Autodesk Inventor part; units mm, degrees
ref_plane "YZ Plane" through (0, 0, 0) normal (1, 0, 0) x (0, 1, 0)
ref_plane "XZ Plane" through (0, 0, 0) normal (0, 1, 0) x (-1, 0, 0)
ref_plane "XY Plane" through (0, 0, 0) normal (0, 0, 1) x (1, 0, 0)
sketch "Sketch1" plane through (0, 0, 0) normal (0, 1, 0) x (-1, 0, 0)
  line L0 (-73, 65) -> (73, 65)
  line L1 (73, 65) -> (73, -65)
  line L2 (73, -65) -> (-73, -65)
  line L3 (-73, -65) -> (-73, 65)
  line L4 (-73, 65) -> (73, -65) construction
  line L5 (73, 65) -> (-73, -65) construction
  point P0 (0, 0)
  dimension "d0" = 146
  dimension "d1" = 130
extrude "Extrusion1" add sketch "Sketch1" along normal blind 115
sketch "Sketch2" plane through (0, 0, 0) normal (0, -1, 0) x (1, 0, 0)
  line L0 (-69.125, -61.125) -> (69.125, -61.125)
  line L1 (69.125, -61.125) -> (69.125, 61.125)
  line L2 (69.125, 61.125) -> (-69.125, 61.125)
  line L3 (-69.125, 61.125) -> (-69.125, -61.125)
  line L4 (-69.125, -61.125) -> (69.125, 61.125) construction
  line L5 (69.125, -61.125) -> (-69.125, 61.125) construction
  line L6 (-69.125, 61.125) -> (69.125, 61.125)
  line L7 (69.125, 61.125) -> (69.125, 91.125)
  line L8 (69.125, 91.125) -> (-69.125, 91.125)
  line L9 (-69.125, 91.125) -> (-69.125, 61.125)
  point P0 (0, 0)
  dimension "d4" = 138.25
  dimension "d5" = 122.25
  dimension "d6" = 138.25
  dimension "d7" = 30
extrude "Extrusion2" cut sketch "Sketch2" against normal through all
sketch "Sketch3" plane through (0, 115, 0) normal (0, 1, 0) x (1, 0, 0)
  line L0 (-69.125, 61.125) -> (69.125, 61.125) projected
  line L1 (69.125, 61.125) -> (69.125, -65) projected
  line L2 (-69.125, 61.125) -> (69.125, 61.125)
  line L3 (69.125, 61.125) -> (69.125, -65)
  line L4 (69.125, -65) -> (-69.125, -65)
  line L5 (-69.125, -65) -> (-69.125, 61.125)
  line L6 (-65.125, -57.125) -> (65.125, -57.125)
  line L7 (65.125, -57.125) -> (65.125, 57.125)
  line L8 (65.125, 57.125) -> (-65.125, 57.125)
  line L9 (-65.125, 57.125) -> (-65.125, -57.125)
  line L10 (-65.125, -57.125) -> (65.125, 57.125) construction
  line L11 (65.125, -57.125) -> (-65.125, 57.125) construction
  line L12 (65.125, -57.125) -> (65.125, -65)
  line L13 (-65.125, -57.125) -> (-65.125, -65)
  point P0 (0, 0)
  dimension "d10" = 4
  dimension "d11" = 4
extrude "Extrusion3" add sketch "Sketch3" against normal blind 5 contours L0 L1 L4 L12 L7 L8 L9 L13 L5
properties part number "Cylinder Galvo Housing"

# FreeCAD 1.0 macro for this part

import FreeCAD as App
import Part
import Sketcher
from FreeCAD import Vector

doc = App.newDocument("Part")
params = doc.addObject("Spreadsheet::Sheet", "Params")
for row, (alias, value) in enumerate([
    ("sketch1_width", "146 mm"),
    ("sketch1_height", "130 mm"),
    ("pad1_length", "115 mm"),
    ("sketch2_width", "138.25 mm"),
    ("sketch2_height", "152.25 mm"),
    ("sketch3_width", "4 mm"),
    ("sketch3_width2", "138.25 mm"),
    ("pad2_length", "5 mm"),
], start=1):
    params.set(f"A{row}", alias)
    params.set(f"B{row}", "=" + value)
    params.setAlias(f"B{row}", alias)

body = doc.addObject("PartDesign::Body", "Body")

sketch1 = body.newObject("Sketcher::SketchObject", "Sketch")
sketch1.AttachmentSupport = (doc.getObject("XZ_Plane"), [""])
sketch1.MapMode = "FlatFace"
sketch1.addGeometry([
    Part.LineSegment(Vector(-73, 65, 0), Vector(73, 65, 0)),
    Part.LineSegment(Vector(73, 65, 0), Vector(73, -65, 0)),
    Part.LineSegment(Vector(73, -65, 0), Vector(-73, -65, 0)),
    Part.LineSegment(Vector(-73, -65, 0), Vector(-73, 65, 0)),
], False)
sketch1.addConstraint([
    Sketcher.Constraint("Coincident", 0, 2, 1, 1),
    Sketcher.Constraint("Coincident", 1, 2, 2, 1),
    Sketcher.Constraint("Coincident", 2, 2, 3, 1),
    Sketcher.Constraint("Coincident", 3, 2, 0, 1),
    Sketcher.Constraint("Horizontal", 0),
    Sketcher.Constraint("Vertical", 1),
    Sketcher.Constraint("Horizontal", 2),
    Sketcher.Constraint("Vertical", 3),
    Sketcher.Constraint("Symmetric", 0, 2, 2, 2, -1, 1),
    Sketcher.Constraint("DistanceX", 0, 1, 0, 2, 146.0),
    Sketcher.Constraint("DistanceY", 1, 2, 1, 1, 130.0),
])
sketch1.setExpression("Constraints[9]", "Params.sketch1_width")
sketch1.setExpression("Constraints[10]", "Params.sketch1_height")
pad1 = body.newObject("PartDesign::Pad", "Pad")
pad1.Profile = sketch1
pad1.setExpression("Length", "Params.pad1_length")
pad1.Reversed = True

sketch2 = body.newObject("Sketcher::SketchObject", "Sketch001")
sketch2.AttachmentSupport = (doc.getObject("XZ_Plane"), [""])
sketch2.MapMode = "FlatFace"
sketch2.addGeometry([
    Part.LineSegment(Vector(-69, -61, 0), Vector(69, -61, 0)),
    Part.LineSegment(Vector(69, -61, 0), Vector(69, 91, 0)),
    Part.LineSegment(Vector(69, 91, 0), Vector(-69, 91, 0)),
    Part.LineSegment(Vector(-69, 91, 0), Vector(-69, -61, 0)),
], False)
sketch2.addConstraint([
    Sketcher.Constraint("Coincident", 0, 2, 1, 1),
    Sketcher.Constraint("Coincident", 1, 2, 2, 1),
    Sketcher.Constraint("Coincident", 2, 2, 3, 1),
    Sketcher.Constraint("Coincident", 3, 2, 0, 1),
    Sketcher.Constraint("Horizontal", 0),
    Sketcher.Constraint("Vertical", 1),
    Sketcher.Constraint("Horizontal", 2),
    Sketcher.Constraint("Vertical", 3),
    Sketcher.Constraint("DistanceX", 0, 1, 0, 2, 138.25),
    Sketcher.Constraint("DistanceY", 1, 1, 1, 2, 152.25),
    Sketcher.Constraint("DistanceX", -1, 1, 0, 2, 69.125),
    Sketcher.Constraint("DistanceY", 0, 2, -1, 1, 61.125),
])
sketch2.setExpression("Constraints[8]", "Params.sketch2_width")
sketch2.setExpression("Constraints[9]", "Params.sketch2_height")
pocket1 = body.newObject("PartDesign::Pocket", "Pocket")
pocket1.Profile = sketch2
pocket1.Type = "ThroughAll"

sketch3 = body.newObject("Sketcher::SketchObject", "Sketch002")
sketch3.AttachmentSupport = (doc.getObject("XZ_Plane"), [""])
sketch3.MapMode = "FlatFace"
sketch3.AttachmentOffset = App.Placement(Vector(0, 0, -115), App.Rotation())
sketch3.addGeometry([
    Part.LineSegment(Vector(69.1, -61.1, 0), Vector(-69.1, -61.1, 0)),
    Part.LineSegment(Vector(-69.1, -61.1, 0), Vector(-69.1, 65, 0)),
    Part.LineSegment(Vector(-69.1, 65, 0), Vector(-65.1, 65, 0)),
    Part.LineSegment(Vector(-65.1, 65, 0), Vector(-65.1, -57.1, 0)),
    Part.LineSegment(Vector(-65.1, -57.1, 0), Vector(65.1, -57.1, 0)),
    Part.LineSegment(Vector(65.1, -57.1, 0), Vector(65.1, 65, 0)),
    Part.LineSegment(Vector(65.1, 65, 0), Vector(69.1, 65, 0)),
    Part.LineSegment(Vector(69.1, 65, 0), Vector(69.1, -61.1, 0)),
], False)
sketch3.addConstraint([
    Sketcher.Constraint("Coincident", 0, 2, 1, 1),
    Sketcher.Constraint("Coincident", 1, 2, 2, 1),
    Sketcher.Constraint("Coincident", 2, 2, 3, 1),
    Sketcher.Constraint("Coincident", 3, 2, 4, 1),
    Sketcher.Constraint("Coincident", 4, 2, 5, 1),
    Sketcher.Constraint("Coincident", 5, 2, 6, 1),
    Sketcher.Constraint("Coincident", 6, 2, 7, 1),
    Sketcher.Constraint("Coincident", 7, 2, 0, 1),
    Sketcher.Constraint("Horizontal", 0),
    Sketcher.Constraint("Vertical", 1),
    Sketcher.Constraint("Horizontal", 2),
    Sketcher.Constraint("Vertical", 3),
    Sketcher.Constraint("Horizontal", 4),
    Sketcher.Constraint("Vertical", 5),
    Sketcher.Constraint("Horizontal", 6),
    Sketcher.Constraint("Vertical", 7),
    Sketcher.Constraint("Symmetric", 2, 2, 5, 2, -2),
    Sketcher.Constraint("Equal", 2, 6),
    Sketcher.Constraint("DistanceX", 2, 1, 2, 2, 4.0),
    Sketcher.Constraint("DistanceY", 0, 2, 3, 2, 4.0),
    Sketcher.Constraint("DistanceY", -1, 1, 1, 2, 65.0),
    Sketcher.Constraint("DistanceX", 0, 2, 0, 1, 138.25),
    Sketcher.Constraint("DistanceY", 1, 1, 1, 2, 126.125),
])
sketch3.setExpression("Constraints[18]", "Params.sketch3_width")
sketch3.setExpression("Constraints[21]", "Params.sketch3_width2")
pad2 = body.newObject("PartDesign::Pad", "Pad001")
pad2.Profile = sketch3
pad2.setExpression("Length", "Params.pad2_length")

doc.recompute()
